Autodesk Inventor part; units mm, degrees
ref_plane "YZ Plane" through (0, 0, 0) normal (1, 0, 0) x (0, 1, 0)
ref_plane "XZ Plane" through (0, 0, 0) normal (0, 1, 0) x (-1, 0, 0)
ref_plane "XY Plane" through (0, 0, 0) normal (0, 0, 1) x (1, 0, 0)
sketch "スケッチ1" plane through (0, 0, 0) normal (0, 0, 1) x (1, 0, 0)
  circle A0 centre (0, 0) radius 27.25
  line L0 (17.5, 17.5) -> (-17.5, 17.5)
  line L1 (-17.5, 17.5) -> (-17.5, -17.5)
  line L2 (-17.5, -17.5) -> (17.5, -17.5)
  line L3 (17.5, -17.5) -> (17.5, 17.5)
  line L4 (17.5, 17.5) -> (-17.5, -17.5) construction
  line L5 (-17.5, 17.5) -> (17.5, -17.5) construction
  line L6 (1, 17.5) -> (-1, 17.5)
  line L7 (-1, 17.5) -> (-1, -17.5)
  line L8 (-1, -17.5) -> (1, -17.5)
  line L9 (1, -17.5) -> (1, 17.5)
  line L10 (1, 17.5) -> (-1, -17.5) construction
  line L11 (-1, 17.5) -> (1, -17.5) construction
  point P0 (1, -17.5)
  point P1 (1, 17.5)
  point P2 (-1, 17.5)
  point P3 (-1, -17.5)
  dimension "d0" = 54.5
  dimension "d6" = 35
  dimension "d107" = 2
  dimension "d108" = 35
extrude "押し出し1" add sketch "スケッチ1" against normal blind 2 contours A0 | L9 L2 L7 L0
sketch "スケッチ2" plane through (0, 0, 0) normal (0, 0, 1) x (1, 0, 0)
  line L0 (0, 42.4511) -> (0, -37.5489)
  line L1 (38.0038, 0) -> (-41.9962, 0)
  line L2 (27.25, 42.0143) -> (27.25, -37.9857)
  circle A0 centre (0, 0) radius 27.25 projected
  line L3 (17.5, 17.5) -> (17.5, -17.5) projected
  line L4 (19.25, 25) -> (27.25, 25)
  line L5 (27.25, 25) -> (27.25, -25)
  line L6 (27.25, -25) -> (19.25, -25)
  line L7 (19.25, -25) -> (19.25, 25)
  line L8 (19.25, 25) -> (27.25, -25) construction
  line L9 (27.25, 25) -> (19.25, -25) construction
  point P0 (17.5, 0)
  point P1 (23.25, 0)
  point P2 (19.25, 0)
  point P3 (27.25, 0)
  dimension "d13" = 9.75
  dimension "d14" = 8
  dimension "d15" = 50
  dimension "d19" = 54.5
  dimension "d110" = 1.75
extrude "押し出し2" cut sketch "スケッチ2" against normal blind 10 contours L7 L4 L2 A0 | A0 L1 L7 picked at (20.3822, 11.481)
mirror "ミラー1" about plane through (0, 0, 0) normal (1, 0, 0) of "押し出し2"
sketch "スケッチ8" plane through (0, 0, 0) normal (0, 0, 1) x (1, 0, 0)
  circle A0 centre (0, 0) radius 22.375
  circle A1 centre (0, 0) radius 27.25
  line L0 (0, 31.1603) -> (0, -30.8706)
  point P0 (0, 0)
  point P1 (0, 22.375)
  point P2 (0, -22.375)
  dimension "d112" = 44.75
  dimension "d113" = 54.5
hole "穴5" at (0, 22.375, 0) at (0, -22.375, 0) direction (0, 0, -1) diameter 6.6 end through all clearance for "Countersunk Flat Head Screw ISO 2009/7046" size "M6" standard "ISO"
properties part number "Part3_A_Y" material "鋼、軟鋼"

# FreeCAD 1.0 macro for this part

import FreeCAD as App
import Part
import Sketcher
from FreeCAD import Vector
Q = App.Units.Quantity


def add_polygon(sketch, points):
    """Adds a closed chain of lines whose ends are joined by coincident constraints."""
    first, n = sketch.GeometryCount, len(points)
    for a, b in zip(points, points[1:] + points[:1]):
        sketch.addGeometry(Part.LineSegment(App.Vector(*a, 0), App.Vector(*b, 0)), False)
    for i in range(n):
        sketch.addConstraint(Sketcher.Constraint("Coincident", first + i, 2, first + (i + 1) % n, 1))

doc = App.newDocument("Part")
params = doc.addObject("Spreadsheet::Sheet", "Params")
for row, (alias, value) in enumerate([
    ("sketch1_diameter", "54.5 mm"),
    ("sketch1_height", "35 mm"),
    ("pad1_length", "2 mm"),
    ("sketch2_width", "8 mm"),
    ("sketch2_height", "25 mm"),
    ("pocket1_length", "10 mm"),
    ("sketch3_diameter", "6.6 mm"),
    ("hole_diameter", "6.6 mm"),
], start=1):
    params.set(f"A{row}", alias)
    params.set(f"B{row}", "=" + value)
    params.setAlias(f"B{row}", alias)

body = doc.addObject("PartDesign::Body", "Body")

# Sketch on XY plane
sketch1 = body.newObject("Sketcher::SketchObject", "Sketch")
sketch1.AttachmentSupport = (doc.getObject("XY_Plane"), [""])
sketch1.MapMode = "FlatFace"
sketch1.addGeometry(Part.Circle(Vector(0, 0, 0), Vector(0, 0, 1), 27), False)  # 0
add_polygon(sketch1, [(1, 18), (18, 18), (18, -18), (1, -18)])  # lines 1-4
add_polygon(sketch1, [(-18, 18), (-1, 18), (-1, -18), (-18, -18)])  # lines 5-8
sketch1.addConstraint([
    Sketcher.Constraint("Horizontal", 1),
    Sketcher.Constraint("Vertical", 2),
    Sketcher.Constraint("Horizontal", 3),
    Sketcher.Constraint("Vertical", 4),
    Sketcher.Constraint("Horizontal", 5),
    Sketcher.Constraint("Vertical", 6),
    Sketcher.Constraint("Horizontal", 7),
    Sketcher.Constraint("Vertical", 8),
    Sketcher.Constraint("Coincident", 0, 3, -1, 1),
    Sketcher.Constraint("Symmetric", 3, 2, 5, 2, -1, 1),
    Sketcher.Constraint("Symmetric", 1, 2, 7, 2, -1, 1),
    Sketcher.Constraint("Horizontal", 4, 2, 5, 2),
    Sketcher.Constraint("Diameter", 0, Q("54.5 mm")),
    Sketcher.Constraint("DistanceY", 2, 2, 2, 1, Q("35 mm")),
    Sketcher.Constraint("DistanceX", 5, 2, 4, 2, Q("2 mm")),
    Sketcher.Constraint("DistanceX", 7, 2, 2, 2, Q("35 mm")),
])
sketch1.setExpression("Constraints[20]", "Params.sketch1_diameter")
sketch1.setExpression("Constraints[21]", "Params.sketch1_height")
pad1 = body.newObject("PartDesign::Pad", "Pad")
pad1.Profile = sketch1
pad1.setExpression("Length", "Params.pad1_length")
pad1.Reversed = True

# Sketch on XY plane
sketch2 = body.newObject("Sketcher::SketchObject", "Sketch001")
sketch2.AttachmentSupport = (doc.getObject("XY_Plane"), [""])
sketch2.MapMode = "FlatFace"
add_polygon(sketch2, [(19, 25), (19, 0), (27, 0), (27, 25)])  # lines 0-3
sketch2.addConstraint([
    Sketcher.Constraint("Vertical", 0),
    Sketcher.Constraint("Horizontal", 1),
    Sketcher.Constraint("Vertical", 2),
    Sketcher.Constraint("Horizontal", 3),
    Sketcher.Constraint("PointOnObject", 0, 2, -1),
    Sketcher.Constraint("DistanceX", 1, 1, 1, 2, Q("8 mm")),
    Sketcher.Constraint("DistanceY", 0, 2, 0, 1, Q("25 mm")),
    Sketcher.Constraint("DistanceX", -1, 1, 0, 2, Q("19.25 mm")),
])
sketch2.setExpression("Constraints[9]", "Params.sketch2_width")
sketch2.setExpression("Constraints[10]", "Params.sketch2_height")
pocket1 = body.newObject("PartDesign::Pocket", "Pocket")
pocket1.Profile = sketch2
pocket1.setExpression("Length", "Params.pocket1_length")
doc.recompute()

mirrored = body.newObject("PartDesign::Mirrored", "Mirrored")
mirrored.Originals = [pocket1]
mirrored.MirrorPlane = (doc.getObject("YZ_Plane"), [""])
body.Tip = mirrored

# Sketch on XY plane
sketch3 = body.newObject("Sketcher::SketchObject", "Sketch002")
sketch3.AttachmentSupport = (doc.getObject("XY_Plane"), [""])
sketch3.MapMode = "FlatFace"
sketch3.addGeometry([
    Part.Circle(Vector(0, 22.4, 0), Vector(0, 0, 1), 3.3),
    Part.Circle(Vector(0, -22.4, 0), Vector(0, 0, 1), 3.3),
], False)
sketch3.addConstraint([
    Sketcher.Constraint("Equal", 0, 1),
    Sketcher.Constraint("Symmetric", 0, 3, 1, 3, -1, 1),
    Sketcher.Constraint("PointOnObject", 0, 3, -2),
    Sketcher.Constraint("Diameter", 0, Q("6.6 mm")),
    Sketcher.Constraint("DistanceY", 1, 3, 0, 3, Q("44.75 mm")),
])
sketch3.setExpression("Constraints[3]", "Params.sketch3_diameter")
doc.recompute()
hole = body.newObject("PartDesign::Hole", "Hole")
hole.Profile = sketch3
hole.ThreadType = "None"
hole.setExpression("Diameter", "Params.hole_diameter")
hole.DepthType = "ThroughAll"

doc.recompute()
